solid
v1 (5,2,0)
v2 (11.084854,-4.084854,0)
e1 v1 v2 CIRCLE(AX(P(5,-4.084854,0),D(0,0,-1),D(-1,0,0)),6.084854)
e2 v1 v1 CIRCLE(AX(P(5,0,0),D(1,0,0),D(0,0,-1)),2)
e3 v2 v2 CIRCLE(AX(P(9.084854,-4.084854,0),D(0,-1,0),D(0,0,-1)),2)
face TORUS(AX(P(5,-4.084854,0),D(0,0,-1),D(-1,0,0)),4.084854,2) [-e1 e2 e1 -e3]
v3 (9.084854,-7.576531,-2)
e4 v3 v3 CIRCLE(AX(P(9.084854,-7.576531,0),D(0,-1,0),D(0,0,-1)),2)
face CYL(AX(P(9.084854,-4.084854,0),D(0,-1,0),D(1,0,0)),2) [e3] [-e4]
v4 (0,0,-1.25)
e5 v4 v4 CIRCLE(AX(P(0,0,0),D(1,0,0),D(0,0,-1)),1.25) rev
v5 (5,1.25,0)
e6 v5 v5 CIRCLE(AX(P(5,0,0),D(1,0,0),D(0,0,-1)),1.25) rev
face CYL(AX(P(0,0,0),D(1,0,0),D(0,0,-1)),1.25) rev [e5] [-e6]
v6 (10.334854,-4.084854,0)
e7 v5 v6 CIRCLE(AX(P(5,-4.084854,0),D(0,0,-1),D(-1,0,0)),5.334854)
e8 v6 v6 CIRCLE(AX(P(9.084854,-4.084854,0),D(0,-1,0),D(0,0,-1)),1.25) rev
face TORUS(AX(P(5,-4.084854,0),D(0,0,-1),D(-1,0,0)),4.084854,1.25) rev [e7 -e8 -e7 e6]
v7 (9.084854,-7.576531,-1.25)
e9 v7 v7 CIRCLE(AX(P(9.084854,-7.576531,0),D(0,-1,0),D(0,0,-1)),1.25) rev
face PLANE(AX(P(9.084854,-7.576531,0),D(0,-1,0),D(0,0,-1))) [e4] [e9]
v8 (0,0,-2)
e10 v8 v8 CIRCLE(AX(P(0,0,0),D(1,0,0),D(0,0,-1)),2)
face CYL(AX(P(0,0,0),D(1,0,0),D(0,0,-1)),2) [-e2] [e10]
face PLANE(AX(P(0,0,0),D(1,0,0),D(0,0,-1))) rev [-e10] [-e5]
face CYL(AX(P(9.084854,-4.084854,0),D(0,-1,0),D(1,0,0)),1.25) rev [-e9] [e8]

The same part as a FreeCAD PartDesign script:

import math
import FreeCAD as App
import Part
import Sketcher
from FreeCAD import Vector

doc = App.newDocument("Part")
body = doc.addObject("PartDesign::Body", "Body")

# Sketch on YZ plane
sketch1 = body.newObject("Sketcher::SketchObject", "Sketch")
sketch1.AttachmentSupport = (doc.getObject("YZ_Plane"), [""])
sketch1.MapMode = "FlatFace"
sketch1.addGeometry(Part.Circle(Vector(0, 0, 0), Vector(0, 0, 1), 2), False)
sketch1.addGeometry(Part.Circle(Vector(0, 0, 0), Vector(0, 0, 1), 1.2), False)
sketch1.addConstraint(Sketcher.Constraint("Coincident", 0, 3, -1, 1))
sketch1.addConstraint(Sketcher.Constraint("Coincident", 1, 3, -1, 1))
sketch1.addConstraint(Sketcher.Constraint("Diameter", 0, 4.0))
sketch1.addConstraint(Sketcher.Constraint("Diameter", 1, 2.5))

# Sketch on XY plane
sketch2 = body.newObject("Sketcher::SketchObject", "Sketch001")
sketch2.AttachmentSupport = (doc.getObject("XY_Plane"), [""])
sketch2.MapMode = "FlatFace"
sketch2.addGeometry(Part.LineSegment(Vector(0, 0, 0), Vector(5, 0, 0)), False)
sketch2.addGeometry(Part.ArcOfCircle(Part.Circle(Vector(5, -4.1, 0), Vector(0, 0, 1), 4.1), math.radians(0), math.radians(90)), False)
sketch2.addGeometry(Part.LineSegment(Vector(9.1, -4.1, 0), Vector(9.1, -7.6, 0)), False)
sketch2.addConstraint(Sketcher.Constraint("Tangent", 0, 2, 1, 2))
sketch2.addConstraint(Sketcher.Constraint("Tangent", 1, 1, 2, 1))
sketch2.addConstraint(Sketcher.Constraint("Horizontal", 0))
sketch2.addConstraint(Sketcher.Constraint("Vertical", 2))
sketch2.addConstraint(Sketcher.Constraint("Coincident", 0, 1, -1, 1))
sketch2.addConstraint(Sketcher.Constraint("DistanceX", 0, 1, 0, 2, 5.0))
sketch2.addConstraint(Sketcher.Constraint("Radius", 1, 4.084854))
sketch2.addConstraint(Sketcher.Constraint("DistanceY", 2, 2, 2, 1, 3.491677))
doc.recompute()

additivepipe = body.newObject("PartDesign::AdditivePipe", "AdditivePipe")
additivepipe.Profile = sketch1
additivepipe.Spine = (sketch2, ["Edge1", "Edge2", "Edge3"])

doc.recompute()
